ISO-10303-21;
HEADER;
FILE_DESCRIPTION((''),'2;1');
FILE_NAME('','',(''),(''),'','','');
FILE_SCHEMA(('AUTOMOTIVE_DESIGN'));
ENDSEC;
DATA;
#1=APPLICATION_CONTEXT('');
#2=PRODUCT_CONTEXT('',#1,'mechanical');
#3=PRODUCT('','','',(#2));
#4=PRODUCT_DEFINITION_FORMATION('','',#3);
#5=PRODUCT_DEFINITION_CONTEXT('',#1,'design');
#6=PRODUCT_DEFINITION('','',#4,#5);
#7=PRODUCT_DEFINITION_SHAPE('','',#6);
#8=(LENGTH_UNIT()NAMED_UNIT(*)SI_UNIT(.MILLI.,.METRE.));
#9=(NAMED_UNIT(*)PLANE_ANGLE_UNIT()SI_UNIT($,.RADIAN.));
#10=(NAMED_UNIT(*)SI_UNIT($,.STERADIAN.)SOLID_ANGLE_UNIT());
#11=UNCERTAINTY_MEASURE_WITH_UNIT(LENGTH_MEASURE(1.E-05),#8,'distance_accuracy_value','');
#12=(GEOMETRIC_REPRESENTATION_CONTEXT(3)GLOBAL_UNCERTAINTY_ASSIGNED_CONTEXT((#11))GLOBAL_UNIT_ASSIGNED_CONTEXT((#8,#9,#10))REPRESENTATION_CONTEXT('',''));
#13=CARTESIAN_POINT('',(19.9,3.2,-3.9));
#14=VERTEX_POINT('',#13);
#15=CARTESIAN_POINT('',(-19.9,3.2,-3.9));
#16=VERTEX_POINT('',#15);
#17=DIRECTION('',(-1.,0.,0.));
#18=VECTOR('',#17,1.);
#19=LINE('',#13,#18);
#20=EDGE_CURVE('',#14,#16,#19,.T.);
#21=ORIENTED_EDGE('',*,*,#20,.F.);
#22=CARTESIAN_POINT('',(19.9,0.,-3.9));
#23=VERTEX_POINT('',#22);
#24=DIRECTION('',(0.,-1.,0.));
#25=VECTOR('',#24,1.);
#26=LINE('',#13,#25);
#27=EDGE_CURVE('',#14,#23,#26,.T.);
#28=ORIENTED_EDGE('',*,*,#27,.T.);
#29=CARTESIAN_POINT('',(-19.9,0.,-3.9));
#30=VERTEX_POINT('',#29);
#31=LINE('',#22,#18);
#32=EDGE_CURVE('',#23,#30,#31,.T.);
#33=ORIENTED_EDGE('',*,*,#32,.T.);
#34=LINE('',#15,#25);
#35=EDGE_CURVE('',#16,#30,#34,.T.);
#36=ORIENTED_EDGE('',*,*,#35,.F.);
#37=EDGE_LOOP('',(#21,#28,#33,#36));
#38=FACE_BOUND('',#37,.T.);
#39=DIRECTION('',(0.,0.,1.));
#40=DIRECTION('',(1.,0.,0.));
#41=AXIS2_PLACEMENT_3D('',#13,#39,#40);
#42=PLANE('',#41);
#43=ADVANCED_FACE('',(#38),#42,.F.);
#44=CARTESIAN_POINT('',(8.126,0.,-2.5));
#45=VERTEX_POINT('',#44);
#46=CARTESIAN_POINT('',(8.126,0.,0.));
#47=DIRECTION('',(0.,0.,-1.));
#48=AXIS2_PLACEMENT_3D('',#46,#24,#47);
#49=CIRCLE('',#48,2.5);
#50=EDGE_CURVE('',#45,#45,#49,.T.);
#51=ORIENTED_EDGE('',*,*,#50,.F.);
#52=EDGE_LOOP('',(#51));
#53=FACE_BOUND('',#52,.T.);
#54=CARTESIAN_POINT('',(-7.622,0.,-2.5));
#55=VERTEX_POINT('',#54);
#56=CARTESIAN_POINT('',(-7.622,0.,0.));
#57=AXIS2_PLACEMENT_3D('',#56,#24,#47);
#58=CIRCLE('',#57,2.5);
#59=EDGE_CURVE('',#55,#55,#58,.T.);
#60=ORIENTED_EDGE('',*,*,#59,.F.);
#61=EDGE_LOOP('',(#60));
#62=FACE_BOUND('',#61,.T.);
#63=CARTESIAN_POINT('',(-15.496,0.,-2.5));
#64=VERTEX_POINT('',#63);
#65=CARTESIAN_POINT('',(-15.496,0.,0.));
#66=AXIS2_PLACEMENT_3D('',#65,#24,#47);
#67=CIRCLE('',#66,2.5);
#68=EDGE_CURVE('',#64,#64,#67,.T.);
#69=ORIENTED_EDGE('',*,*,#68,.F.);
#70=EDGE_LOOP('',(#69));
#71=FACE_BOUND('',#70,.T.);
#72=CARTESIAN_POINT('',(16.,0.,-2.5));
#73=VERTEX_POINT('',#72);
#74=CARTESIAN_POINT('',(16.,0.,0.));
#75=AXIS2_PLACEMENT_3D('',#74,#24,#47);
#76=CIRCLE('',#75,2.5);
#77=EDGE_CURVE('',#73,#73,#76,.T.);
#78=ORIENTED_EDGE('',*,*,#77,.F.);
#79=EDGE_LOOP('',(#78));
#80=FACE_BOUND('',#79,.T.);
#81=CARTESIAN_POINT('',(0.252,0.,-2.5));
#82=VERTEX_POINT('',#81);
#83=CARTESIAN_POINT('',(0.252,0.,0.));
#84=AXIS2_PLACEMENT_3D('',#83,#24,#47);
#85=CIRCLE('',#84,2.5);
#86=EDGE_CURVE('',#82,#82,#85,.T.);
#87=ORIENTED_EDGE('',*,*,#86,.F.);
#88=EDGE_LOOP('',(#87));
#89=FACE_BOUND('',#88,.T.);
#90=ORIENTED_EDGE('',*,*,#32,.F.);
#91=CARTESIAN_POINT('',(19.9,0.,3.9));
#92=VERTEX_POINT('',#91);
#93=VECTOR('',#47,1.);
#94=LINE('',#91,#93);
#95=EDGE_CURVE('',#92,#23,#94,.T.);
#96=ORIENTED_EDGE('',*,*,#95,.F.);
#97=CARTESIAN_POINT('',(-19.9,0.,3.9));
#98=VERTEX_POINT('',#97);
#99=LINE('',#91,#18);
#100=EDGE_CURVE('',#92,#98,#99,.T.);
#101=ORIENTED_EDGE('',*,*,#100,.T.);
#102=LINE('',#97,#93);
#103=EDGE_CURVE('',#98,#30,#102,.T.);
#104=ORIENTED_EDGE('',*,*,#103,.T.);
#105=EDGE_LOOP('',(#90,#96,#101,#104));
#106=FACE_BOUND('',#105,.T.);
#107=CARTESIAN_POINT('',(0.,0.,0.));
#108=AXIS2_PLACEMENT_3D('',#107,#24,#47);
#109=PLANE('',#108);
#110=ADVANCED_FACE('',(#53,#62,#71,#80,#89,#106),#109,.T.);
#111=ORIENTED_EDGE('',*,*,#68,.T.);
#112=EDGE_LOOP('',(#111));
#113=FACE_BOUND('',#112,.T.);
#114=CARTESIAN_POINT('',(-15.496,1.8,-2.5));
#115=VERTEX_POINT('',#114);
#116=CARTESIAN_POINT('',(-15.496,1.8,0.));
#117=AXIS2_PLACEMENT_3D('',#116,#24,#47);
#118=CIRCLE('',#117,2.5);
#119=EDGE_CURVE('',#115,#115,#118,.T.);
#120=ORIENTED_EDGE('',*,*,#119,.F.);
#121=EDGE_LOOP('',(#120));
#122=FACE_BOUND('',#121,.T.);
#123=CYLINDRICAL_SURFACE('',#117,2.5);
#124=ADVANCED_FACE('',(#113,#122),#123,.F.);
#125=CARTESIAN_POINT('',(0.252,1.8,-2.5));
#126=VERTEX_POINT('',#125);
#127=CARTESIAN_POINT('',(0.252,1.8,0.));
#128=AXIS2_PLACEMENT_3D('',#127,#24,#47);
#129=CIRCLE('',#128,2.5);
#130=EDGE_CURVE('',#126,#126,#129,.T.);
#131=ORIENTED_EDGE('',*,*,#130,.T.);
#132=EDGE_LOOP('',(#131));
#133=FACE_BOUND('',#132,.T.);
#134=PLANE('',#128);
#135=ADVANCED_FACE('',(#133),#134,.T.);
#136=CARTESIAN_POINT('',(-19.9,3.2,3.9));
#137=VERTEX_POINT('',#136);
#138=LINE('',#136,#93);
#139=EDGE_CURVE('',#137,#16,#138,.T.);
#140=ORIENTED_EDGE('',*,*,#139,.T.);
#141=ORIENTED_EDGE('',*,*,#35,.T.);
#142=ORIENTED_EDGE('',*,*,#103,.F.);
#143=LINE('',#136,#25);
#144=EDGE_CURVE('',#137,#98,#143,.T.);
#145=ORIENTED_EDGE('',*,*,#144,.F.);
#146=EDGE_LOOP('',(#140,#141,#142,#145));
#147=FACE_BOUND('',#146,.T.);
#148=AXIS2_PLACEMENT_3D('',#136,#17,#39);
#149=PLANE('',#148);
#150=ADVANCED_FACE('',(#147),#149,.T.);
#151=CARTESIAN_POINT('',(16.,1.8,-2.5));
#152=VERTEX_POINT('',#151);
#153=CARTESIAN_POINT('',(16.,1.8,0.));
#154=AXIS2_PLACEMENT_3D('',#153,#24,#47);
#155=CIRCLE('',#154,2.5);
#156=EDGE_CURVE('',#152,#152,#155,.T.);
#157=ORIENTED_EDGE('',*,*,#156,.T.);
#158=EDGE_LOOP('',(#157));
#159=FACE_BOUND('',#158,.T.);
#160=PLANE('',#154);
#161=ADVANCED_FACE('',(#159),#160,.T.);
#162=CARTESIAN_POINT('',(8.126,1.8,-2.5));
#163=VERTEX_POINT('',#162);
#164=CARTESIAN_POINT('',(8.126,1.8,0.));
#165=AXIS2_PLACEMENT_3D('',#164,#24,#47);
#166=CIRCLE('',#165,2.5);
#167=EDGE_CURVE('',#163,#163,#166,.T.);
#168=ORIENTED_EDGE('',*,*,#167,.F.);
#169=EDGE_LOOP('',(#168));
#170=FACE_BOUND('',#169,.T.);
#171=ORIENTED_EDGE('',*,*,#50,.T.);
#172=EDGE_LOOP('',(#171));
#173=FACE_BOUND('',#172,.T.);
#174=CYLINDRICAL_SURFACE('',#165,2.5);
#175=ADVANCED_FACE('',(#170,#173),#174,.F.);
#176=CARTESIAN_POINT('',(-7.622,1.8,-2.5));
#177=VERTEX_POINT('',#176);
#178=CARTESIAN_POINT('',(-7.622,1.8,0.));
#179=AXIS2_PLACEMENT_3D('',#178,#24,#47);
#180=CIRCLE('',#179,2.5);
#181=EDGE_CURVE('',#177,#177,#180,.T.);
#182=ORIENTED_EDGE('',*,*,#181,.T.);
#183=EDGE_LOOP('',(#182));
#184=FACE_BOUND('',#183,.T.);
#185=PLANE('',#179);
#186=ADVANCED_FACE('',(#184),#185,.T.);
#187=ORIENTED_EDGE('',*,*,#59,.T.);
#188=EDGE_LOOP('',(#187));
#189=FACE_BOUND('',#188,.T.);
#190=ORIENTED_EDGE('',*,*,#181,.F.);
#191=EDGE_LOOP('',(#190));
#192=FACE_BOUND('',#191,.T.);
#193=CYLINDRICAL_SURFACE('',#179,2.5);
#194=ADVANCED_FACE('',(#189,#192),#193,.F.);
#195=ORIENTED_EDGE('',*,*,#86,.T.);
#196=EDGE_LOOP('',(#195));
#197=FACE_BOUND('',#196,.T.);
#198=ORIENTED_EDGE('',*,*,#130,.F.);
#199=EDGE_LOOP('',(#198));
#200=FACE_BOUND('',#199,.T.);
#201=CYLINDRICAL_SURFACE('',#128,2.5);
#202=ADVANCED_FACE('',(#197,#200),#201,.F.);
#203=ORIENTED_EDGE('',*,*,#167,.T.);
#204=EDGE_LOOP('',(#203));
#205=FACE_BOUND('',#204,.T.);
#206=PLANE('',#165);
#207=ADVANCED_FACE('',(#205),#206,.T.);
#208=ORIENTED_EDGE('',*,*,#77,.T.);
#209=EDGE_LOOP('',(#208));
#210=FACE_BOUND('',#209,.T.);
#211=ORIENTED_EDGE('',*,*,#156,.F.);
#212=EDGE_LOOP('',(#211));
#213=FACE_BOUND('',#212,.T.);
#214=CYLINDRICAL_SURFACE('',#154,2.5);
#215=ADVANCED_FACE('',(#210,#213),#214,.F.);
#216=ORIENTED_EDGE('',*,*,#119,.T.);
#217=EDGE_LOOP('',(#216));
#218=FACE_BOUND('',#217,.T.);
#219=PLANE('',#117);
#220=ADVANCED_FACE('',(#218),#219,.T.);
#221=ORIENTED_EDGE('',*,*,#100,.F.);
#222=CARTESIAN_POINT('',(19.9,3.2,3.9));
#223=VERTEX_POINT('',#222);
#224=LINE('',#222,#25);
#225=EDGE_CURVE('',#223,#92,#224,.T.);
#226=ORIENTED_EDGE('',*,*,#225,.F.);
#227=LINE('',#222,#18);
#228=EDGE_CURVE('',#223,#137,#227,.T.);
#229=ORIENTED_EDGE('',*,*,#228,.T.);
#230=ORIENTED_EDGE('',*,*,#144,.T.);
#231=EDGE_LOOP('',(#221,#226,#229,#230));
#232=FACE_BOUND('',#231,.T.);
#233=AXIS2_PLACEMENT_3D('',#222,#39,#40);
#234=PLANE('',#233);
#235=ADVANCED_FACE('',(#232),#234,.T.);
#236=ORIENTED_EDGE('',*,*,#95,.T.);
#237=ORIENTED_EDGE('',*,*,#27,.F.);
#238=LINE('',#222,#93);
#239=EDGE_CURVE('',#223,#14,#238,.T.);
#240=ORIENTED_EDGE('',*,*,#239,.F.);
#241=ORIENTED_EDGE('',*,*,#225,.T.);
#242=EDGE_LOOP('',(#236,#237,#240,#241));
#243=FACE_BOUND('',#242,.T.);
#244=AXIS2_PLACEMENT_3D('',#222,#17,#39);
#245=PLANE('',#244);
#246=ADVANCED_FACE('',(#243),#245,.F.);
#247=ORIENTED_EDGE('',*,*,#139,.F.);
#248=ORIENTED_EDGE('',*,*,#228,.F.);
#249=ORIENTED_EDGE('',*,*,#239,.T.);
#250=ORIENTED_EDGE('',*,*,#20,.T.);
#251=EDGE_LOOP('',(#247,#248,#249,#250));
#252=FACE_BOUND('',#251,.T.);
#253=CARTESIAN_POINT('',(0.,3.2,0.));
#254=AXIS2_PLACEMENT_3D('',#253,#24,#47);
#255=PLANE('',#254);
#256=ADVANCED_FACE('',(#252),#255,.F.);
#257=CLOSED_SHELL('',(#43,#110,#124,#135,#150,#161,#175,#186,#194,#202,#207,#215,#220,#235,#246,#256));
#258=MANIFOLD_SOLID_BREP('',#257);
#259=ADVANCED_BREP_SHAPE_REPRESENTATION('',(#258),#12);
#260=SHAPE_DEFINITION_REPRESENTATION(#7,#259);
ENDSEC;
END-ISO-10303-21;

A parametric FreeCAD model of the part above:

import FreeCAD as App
import Part
import Sketcher

V = App.Vector


def add_polygon(sketch, points):
    """Adds a closed chain of lines whose ends are joined by coincident constraints."""
    first, n = sketch.GeometryCount, len(points)
    for a, b in zip(points, points[1:] + points[:1]):
        sketch.addGeometry(Part.LineSegment(App.Vector(*a, 0), App.Vector(*b, 0)), False)
    for i in range(n):
        sketch.addConstraint(Sketcher.Constraint("Coincident", first + i, 2, first + (i + 1) % n, 1))

doc = App.newDocument("Part")
body = doc.addObject("PartDesign::Body", "Body")

sketch1 = doc.addObject("Sketcher::SketchObject", "Sketch")
body.addObject(sketch1)
sketch1.AttachmentSupport = (doc.XZ_Plane, [""])
sketch1.MapMode = "FlatFace"
add_polygon(sketch1, [(-20, -4), (-20, 4), (20, 4), (20, -4)])
sketch1.addConstraint([
    Sketcher.Constraint("Vertical", 0),
    Sketcher.Constraint("Horizontal", 1),
    Sketcher.Constraint("Vertical", 2),
    Sketcher.Constraint("Horizontal", 3),
    Sketcher.Constraint("Symmetric", 0, 2, 2, 2, -1, 1),
    Sketcher.Constraint("DistanceX", 1, 1, 1, 2, 39.8),
    Sketcher.Constraint("DistanceY", 0, 1, 0, 2, 7.8),
])
pad1 = doc.addObject("PartDesign::Pad", "Pad")
body.addObject(pad1)
pad1.Profile = sketch1
pad1.Length = 3.2
pad1.Reversed = True

sketch2 = doc.addObject("Sketcher::SketchObject", "Sketch001")
body.addObject(sketch2)
sketch2.AttachmentSupport = (doc.XZ_Plane, [""])
sketch2.MapMode = "FlatFace"
sketch2.addGeometry([
    Part.Circle(V(16, 0, 0), V(0, 0, 1), 2.5),
    Part.Circle(V(8.1, 0, 0), V(0, 0, 1), 2.5),
    Part.Circle(V(0.3, 0, 0), V(0, 0, 1), 2.5),
    Part.Circle(V(-7.6, 0, 0), V(0, 0, 1), 2.5),
    Part.Circle(V(-15.5, 0, 0), V(0, 0, 1), 2.5),
], False)
sketch2.addConstraint([
    Sketcher.Constraint("Equal", 0, 1),
    Sketcher.Constraint("Equal", 1, 2),
    Sketcher.Constraint("Equal", 2, 3),
    Sketcher.Constraint("Equal", 3, 4),
    Sketcher.Constraint("PointOnObject", 0, 3, -1),
    Sketcher.Constraint("PointOnObject", 1, 3, -1),
    Sketcher.Constraint("PointOnObject", 2, 3, -1),
    Sketcher.Constraint("PointOnObject", 3, 3, -1),
    Sketcher.Constraint("PointOnObject", 4, 3, -1),
    Sketcher.Constraint("Diameter", 0, 5.0),
    Sketcher.Constraint("DistanceX", -1, 1, 0, 3, 16.0),
    Sketcher.Constraint("DistanceX", -1, 1, 1, 3, 8.126),
    Sketcher.Constraint("DistanceX", -1, 1, 2, 3, 0.252),
    Sketcher.Constraint("DistanceX", 3, 3, -1, 1, 7.622),
    Sketcher.Constraint("DistanceX", 4, 3, -1, 1, 15.496),
])
pocket1 = doc.addObject("PartDesign::Pocket", "Pocket")
body.addObject(pocket1)
pocket1.Profile = sketch2
pocket1.Length = 1.8

doc.recompute()
